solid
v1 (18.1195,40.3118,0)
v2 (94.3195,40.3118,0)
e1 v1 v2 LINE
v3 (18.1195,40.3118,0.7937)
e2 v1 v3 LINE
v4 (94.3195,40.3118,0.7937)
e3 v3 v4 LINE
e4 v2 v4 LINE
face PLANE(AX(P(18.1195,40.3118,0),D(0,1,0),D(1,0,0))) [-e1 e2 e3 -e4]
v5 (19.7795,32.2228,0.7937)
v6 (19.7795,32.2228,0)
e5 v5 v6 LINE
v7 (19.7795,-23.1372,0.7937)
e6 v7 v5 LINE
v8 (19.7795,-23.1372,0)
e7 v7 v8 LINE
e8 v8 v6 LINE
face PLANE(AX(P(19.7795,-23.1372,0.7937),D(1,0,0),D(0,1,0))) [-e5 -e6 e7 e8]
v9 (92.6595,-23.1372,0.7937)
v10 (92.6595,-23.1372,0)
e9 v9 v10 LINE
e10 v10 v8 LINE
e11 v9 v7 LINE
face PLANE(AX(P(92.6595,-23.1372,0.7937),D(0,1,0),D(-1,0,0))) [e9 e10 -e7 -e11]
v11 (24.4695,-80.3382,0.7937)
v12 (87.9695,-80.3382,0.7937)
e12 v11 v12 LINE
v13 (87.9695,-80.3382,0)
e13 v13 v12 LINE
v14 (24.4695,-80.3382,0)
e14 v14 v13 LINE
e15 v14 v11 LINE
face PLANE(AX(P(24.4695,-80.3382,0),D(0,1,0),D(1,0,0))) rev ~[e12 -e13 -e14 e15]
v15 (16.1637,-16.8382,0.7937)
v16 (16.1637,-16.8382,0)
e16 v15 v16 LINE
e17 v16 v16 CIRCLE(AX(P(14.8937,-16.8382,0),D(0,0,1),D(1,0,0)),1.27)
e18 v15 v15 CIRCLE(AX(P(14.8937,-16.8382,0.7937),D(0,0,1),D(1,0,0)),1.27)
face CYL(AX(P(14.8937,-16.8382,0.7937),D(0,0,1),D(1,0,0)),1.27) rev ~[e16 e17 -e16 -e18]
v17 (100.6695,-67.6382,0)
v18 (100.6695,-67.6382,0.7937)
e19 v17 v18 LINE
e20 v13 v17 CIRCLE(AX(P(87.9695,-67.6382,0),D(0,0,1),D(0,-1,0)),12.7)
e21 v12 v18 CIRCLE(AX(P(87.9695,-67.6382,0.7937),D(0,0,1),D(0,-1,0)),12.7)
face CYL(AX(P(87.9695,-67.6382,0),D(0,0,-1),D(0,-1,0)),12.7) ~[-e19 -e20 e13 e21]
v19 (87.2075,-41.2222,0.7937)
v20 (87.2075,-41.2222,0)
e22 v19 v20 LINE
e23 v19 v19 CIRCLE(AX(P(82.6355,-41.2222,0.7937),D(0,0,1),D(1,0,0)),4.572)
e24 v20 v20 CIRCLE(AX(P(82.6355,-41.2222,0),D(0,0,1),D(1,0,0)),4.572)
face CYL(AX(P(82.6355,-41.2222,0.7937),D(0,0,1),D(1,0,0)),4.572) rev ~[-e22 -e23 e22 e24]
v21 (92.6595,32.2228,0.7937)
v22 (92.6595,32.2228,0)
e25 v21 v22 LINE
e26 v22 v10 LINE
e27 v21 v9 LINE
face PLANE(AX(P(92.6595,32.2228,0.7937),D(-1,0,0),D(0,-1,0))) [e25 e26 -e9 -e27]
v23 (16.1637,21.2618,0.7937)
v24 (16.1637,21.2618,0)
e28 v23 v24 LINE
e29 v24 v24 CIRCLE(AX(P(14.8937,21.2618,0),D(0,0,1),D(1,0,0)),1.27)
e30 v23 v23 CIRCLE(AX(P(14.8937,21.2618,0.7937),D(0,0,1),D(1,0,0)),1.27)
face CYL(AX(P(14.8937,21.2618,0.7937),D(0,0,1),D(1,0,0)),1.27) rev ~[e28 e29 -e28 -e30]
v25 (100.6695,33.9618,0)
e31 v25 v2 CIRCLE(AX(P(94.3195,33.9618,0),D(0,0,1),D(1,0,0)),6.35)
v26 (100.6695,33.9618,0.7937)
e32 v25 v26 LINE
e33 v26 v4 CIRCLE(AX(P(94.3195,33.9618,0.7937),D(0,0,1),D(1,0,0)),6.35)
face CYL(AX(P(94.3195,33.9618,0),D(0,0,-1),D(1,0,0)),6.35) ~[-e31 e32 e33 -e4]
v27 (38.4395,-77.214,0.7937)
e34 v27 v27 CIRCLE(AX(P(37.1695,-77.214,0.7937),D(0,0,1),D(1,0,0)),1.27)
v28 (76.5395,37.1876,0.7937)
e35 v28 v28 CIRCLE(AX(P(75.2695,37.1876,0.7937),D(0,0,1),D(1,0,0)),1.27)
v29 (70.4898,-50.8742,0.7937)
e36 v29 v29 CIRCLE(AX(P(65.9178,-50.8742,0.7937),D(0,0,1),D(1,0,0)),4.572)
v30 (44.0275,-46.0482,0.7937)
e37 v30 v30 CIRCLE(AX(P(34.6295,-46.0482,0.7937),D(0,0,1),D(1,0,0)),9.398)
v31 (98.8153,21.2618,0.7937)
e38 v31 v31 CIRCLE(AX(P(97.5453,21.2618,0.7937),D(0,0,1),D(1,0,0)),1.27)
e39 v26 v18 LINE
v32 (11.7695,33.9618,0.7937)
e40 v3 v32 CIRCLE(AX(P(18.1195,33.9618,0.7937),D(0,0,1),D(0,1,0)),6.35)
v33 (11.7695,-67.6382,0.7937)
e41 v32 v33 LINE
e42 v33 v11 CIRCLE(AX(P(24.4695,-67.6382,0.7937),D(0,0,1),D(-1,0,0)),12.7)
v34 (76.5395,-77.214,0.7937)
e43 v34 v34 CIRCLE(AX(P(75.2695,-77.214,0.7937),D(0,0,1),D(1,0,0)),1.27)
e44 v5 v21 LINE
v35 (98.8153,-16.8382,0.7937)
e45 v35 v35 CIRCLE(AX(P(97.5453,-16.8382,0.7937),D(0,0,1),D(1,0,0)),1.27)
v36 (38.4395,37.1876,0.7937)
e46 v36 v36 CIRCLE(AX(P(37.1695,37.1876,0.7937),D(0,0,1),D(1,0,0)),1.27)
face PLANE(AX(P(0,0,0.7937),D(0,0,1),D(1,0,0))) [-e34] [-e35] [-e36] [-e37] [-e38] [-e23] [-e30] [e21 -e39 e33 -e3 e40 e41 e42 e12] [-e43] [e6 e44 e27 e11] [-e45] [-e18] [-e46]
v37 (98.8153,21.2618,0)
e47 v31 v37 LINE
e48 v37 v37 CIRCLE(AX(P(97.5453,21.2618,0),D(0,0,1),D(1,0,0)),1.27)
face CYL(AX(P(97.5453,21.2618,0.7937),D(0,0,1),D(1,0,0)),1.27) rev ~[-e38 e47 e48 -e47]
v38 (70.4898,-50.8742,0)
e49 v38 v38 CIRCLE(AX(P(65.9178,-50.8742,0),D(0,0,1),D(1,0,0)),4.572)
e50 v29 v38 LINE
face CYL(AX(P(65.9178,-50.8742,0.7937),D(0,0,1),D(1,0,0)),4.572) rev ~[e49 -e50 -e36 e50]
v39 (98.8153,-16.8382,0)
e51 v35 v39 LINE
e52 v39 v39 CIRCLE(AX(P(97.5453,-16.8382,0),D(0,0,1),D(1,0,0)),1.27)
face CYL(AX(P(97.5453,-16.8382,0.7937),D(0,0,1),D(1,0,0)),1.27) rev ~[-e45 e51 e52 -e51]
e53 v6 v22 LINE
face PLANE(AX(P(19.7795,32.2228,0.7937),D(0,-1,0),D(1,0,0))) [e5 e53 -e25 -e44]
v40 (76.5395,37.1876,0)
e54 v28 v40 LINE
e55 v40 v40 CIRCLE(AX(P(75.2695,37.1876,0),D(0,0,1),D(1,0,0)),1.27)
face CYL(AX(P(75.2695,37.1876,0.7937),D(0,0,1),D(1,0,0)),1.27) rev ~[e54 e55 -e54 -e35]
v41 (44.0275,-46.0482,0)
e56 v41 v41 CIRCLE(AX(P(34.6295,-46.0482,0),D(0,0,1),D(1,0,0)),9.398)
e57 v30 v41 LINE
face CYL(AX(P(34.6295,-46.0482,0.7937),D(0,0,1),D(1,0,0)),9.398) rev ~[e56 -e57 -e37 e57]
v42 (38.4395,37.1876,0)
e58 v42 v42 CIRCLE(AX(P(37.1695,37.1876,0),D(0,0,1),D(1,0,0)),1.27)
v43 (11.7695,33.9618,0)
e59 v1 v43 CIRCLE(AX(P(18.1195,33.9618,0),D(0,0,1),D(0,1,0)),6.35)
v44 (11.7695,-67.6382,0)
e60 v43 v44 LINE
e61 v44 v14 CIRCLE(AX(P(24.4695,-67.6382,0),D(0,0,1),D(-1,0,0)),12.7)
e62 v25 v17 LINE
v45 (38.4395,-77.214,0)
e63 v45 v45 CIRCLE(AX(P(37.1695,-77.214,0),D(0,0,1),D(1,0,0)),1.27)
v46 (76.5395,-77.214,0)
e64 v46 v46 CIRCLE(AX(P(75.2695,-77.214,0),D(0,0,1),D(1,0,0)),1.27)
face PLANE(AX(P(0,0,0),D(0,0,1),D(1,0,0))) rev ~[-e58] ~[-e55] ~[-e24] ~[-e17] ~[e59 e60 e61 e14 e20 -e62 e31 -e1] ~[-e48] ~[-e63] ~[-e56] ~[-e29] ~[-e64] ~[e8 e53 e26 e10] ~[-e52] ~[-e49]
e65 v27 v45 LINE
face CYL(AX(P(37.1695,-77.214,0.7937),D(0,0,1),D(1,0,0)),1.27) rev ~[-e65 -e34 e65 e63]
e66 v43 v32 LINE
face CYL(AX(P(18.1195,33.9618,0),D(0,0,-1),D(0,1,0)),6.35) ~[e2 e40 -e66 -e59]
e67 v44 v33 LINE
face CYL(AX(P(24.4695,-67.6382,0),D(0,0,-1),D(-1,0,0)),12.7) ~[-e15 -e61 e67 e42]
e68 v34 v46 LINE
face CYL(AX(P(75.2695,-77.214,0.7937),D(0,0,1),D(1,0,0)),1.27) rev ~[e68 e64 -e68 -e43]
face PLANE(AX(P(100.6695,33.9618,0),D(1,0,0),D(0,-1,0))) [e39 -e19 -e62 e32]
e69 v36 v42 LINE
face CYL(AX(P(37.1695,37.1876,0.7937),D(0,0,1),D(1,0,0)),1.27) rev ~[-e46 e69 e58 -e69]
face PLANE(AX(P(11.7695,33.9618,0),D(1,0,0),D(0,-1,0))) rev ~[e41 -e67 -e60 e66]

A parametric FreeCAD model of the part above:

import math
import FreeCAD as App
import Part
import Sketcher
from FreeCAD import Vector
Q = App.Units.Quantity

doc = App.newDocument("Part")
body = doc.addObject("PartDesign::Body", "Body")

sketch1 = body.newObject("Sketcher::SketchObject", "Sketch")
sketch1.AttachmentSupport = (doc.getObject("XY_Plane"), [""])
sketch1.MapMode = "FlatFace"
sketch1.addGeometry(Part.ArcOfCircle(Part.Circle(Vector(18, 34, 0), Vector(0, 0, 1), 6), math.radians(90), math.radians(180)), False)
sketch1.addGeometry(Part.LineSegment(Vector(12, 34, 0), Vector(12, -68, 0)), False)
sketch1.addGeometry(Part.ArcOfCircle(Part.Circle(Vector(24, -68, 0), Vector(0, 0, 1), 13), math.radians(180), math.radians(270)), False)
sketch1.addGeometry(Part.LineSegment(Vector(24, -80, 0), Vector(88, -80, 0)), False)
sketch1.addGeometry(Part.ArcOfCircle(Part.Circle(Vector(88, -68, 0), Vector(0, 0, 1), 13), math.radians(-90), math.radians(0)), False)
sketch1.addGeometry(Part.LineSegment(Vector(101, -68, 0), Vector(101, 34, 0)), False)
sketch1.addGeometry(Part.ArcOfCircle(Part.Circle(Vector(94, 34, 0), Vector(0, 0, 1), 6), math.radians(0), math.radians(90)), False)
sketch1.addGeometry(Part.LineSegment(Vector(94, 40, 0), Vector(18, 40, 0)), False)
sketch1.addConstraint(Sketcher.Constraint("Tangent", 0, 2, 1, 1))
sketch1.addConstraint(Sketcher.Constraint("Tangent", 1, 2, 2, 1))
sketch1.addConstraint(Sketcher.Constraint("Tangent", 2, 2, 3, 1))
sketch1.addConstraint(Sketcher.Constraint("Tangent", 3, 2, 4, 1))
sketch1.addConstraint(Sketcher.Constraint("Tangent", 4, 2, 5, 1))
sketch1.addConstraint(Sketcher.Constraint("Tangent", 5, 2, 6, 1))
sketch1.addConstraint(Sketcher.Constraint("Tangent", 6, 2, 7, 1))
sketch1.addConstraint(Sketcher.Constraint("Tangent", 7, 2, 0, 1))
sketch1.addConstraint(Sketcher.Constraint("Vertical", 1))
sketch1.addConstraint(Sketcher.Constraint("Horizontal", 3))
sketch1.addConstraint(Sketcher.Constraint("Vertical", 5))
sketch1.addConstraint(Sketcher.Constraint("Horizontal", 7))
sketch1.addConstraint(Sketcher.Constraint("Equal", 2, 4))
sketch1.addConstraint(Sketcher.Constraint("Equal", 0, 6))
sketch1.addConstraint(Sketcher.Constraint("Radius", 2, Q("0.5 in")))
sketch1.addConstraint(Sketcher.Constraint("Radius", 0, Q("0.25 in")))
sketch1.addConstraint(Sketcher.Constraint("DistanceX", 1, 2, 4, 2, Q("3.5 in")))
sketch1.addConstraint(Sketcher.Constraint("DistanceY", 1, 2, 1, 1, Q("4 in")))
sketch1.addConstraint(Sketcher.Constraint("DistanceX", -1, 1, 0, 3, Q("18.1195 mm")))
sketch1.addConstraint(Sketcher.Constraint("DistanceY", -1, 1, 0, 3, Q("33.9618 mm")))
pad1 = body.newObject("PartDesign::Pad", "Pad")
pad1.Profile = sketch1
pad1.Length = Q("0.031248 in")

sketch2 = body.newObject("Sketcher::SketchObject", "Sketch001")
sketch2.AttachmentSupport = (doc.getObject("XY_Plane"), [""])
sketch2.MapMode = "FlatFace"
sketch2.AttachmentOffset = App.Placement(Vector(0, 0, 0.031248 * 25.4), App.Rotation())
sketch2.addGeometry(Part.LineSegment(Vector(93, 32, 0), Vector(20, 32, 0)), False)
sketch2.addGeometry(Part.LineSegment(Vector(20, 32, 0), Vector(20, -23, 0)), False)
sketch2.addGeometry(Part.LineSegment(Vector(20, -23, 0), Vector(93, -23, 0)), False)
sketch2.addGeometry(Part.LineSegment(Vector(93, -23, 0), Vector(93, 32, 0)), False)
sketch2.addConstraint(Sketcher.Constraint("Coincident", 0, 2, 1, 1))
sketch2.addConstraint(Sketcher.Constraint("Coincident", 1, 2, 2, 1))
sketch2.addConstraint(Sketcher.Constraint("Coincident", 2, 2, 3, 1))
sketch2.addConstraint(Sketcher.Constraint("Coincident", 3, 2, 0, 1))
sketch2.addConstraint(Sketcher.Constraint("Horizontal", 0))
sketch2.addConstraint(Sketcher.Constraint("Vertical", 1))
sketch2.addConstraint(Sketcher.Constraint("Horizontal", 2))
sketch2.addConstraint(Sketcher.Constraint("Vertical", 3))
sketch2.addConstraint(Sketcher.Constraint("DistanceX", 0, 2, 0, 1, Q("2.8693 in")))
sketch2.addConstraint(Sketcher.Constraint("DistanceY", 1, 2, 1, 1, Q("55.36 mm")))
sketch2.addConstraint(Sketcher.Constraint("DistanceX", -1, 1, 2, 2, Q("3.648 in")))
sketch2.addConstraint(Sketcher.Constraint("DistanceY", -1, 1, 0, 2, Q("32.2228 mm")))
pocket1 = body.newObject("PartDesign::Pocket", "Pocket")
pocket1.Profile = sketch2
pocket1.Type = "ThroughAll"

sketch3 = body.newObject("Sketcher::SketchObject", "Sketch002")
sketch3.AttachmentSupport = (doc.getObject("XY_Plane"), [""])
sketch3.MapMode = "FlatFace"
sketch3.AttachmentOffset = App.Placement(Vector(0, 0, 0.031248 * 25.4), App.Rotation())
sketch3.addGeometry(Part.Circle(Vector(34.6, -46, 0), Vector(0, 0, 1), 9.4), False)
sketch3.addGeometry(Part.Circle(Vector(82.6, -41.2, 0), Vector(0, 0, 1), 4.6), False)
sketch3.addGeometry(Part.Circle(Vector(65.9, -50.9, 0), Vector(0, 0, 1), 4.6), False)
sketch3.addConstraint(Sketcher.Constraint("Equal", 1, 2))
sketch3.addConstraint(Sketcher.Constraint("Diameter", 0, Q("0.74 in")))
sketch3.addConstraint(Sketcher.Constraint("Diameter", 1, Q("0.36 in")))
sketch3.addConstraint(Sketcher.Constraint("DistanceX", 0, 3, 1, 3, Q("1.89 in")))
sketch3.addConstraint(Sketcher.Constraint("DistanceY", 0, 3, 1, 3, Q("0.19 in")))
sketch3.addConstraint(Sketcher.Constraint("DistanceY", 2, 3, 1, 3, Q("0.38 in")))
sketch3.addConstraint(Sketcher.Constraint("DistanceX", -1, 1, 2, 3, Q("2.5952 in")))
sketch3.addConstraint(Sketcher.Constraint("DistanceX", -1, 1, 0, 3, Q("34.6295 mm")))
sketch3.addConstraint(Sketcher.Constraint("DistanceY", 0, 3, -1, 1, Q("46.0482 mm")))
pocket2 = body.newObject("PartDesign::Pocket", "Pocket001")
pocket2.Profile = sketch3
pocket2.Type = "ThroughAll"

sketch4 = body.newObject("Sketcher::SketchObject", "Sketch003")
sketch4.AttachmentSupport = (doc.getObject("XY_Plane"), [""])
sketch4.MapMode = "FlatFace"
sketch4.AttachmentOffset = App.Placement(Vector(0, 0, 0.031248 * 25.4), App.Rotation())
sketch4.addGeometry(Part.Circle(Vector(37.2, 37.2, 0), Vector(0, 0, 1), 1.3), False)
sketch4.addGeometry(Part.Circle(Vector(75.3, 37.2, 0), Vector(0, 0, 1), 1.3), False)
sketch4.addGeometry(Part.Circle(Vector(97.5, 21.3, 0), Vector(0, 0, 1), 1.3), False)
sketch4.addGeometry(Part.Circle(Vector(97.5, -16.8, 0), Vector(0, 0, 1), 1.3), False)
sketch4.addGeometry(Part.Circle(Vector(75.3, -77.2, 0), Vector(0, 0, 1), 1.3), False)
sketch4.addGeometry(Part.Circle(Vector(37.2, -77.2, 0), Vector(0, 0, 1), 1.3), False)
sketch4.addGeometry(Part.Circle(Vector(14.9, 21.3, 0), Vector(0, 0, 1), 1.3), False)
sketch4.addGeometry(Part.Circle(Vector(14.9, -16.8, 0), Vector(0, 0, 1), 1.3), False)
sketch4.addConstraint(Sketcher.Constraint("Equal", 0, 1))
sketch4.addConstraint(Sketcher.Constraint("Equal", 1, 2))
sketch4.addConstraint(Sketcher.Constraint("Equal", 2, 3))
sketch4.addConstraint(Sketcher.Constraint("Equal", 3, 4))
sketch4.addConstraint(Sketcher.Constraint("Equal", 4, 5))
sketch4.addConstraint(Sketcher.Constraint("Equal", 5, 6))
sketch4.addConstraint(Sketcher.Constraint("Equal", 6, 7))
sketch4.addConstraint(Sketcher.Constraint("Horizontal", 0, 3, 1, 3))
sketch4.addConstraint(Sketcher.Constraint("Horizontal", 4, 3, 5, 3))
sketch4.addConstraint(Sketcher.Constraint("Horizontal", 2, 3, 6, 3))
sketch4.addConstraint(Sketcher.Constraint("Horizontal", 3, 3, 7, 3))
sketch4.addConstraint(Sketcher.Constraint("Vertical", 2, 3, 3, 3))
sketch4.addConstraint(Sketcher.Constraint("Vertical", 1, 3, 4, 3))
sketch4.addConstraint(Sketcher.Constraint("Vertical", 0, 3, 5, 3))
sketch4.addConstraint(Sketcher.Constraint("Vertical", 6, 3, 7, 3))
sketch4.addConstraint(Sketcher.Constraint("Diameter", 0, Q("0.1 in")))
sketch4.addConstraint(Sketcher.Constraint("DistanceX", 0, 3, 1, 3, Q("1.5 in")))
sketch4.addConstraint(Sketcher.Constraint("DistanceY", 3, 3, 2, 3, Q("1.5 in")))
sketch4.addConstraint(Sketcher.Constraint("DistanceX", 1, 3, 2, 3, Q("0.877 in")))
sketch4.addConstraint(Sketcher.Constraint("DistanceY", 2, 3, 1, 3, Q("0.627 in")))
sketch4.addConstraint(Sketcher.Constraint("DistanceY", 4, 3, 3, 3, Q("2.377 in")))
sketch4.addConstraint(Sketcher.Constraint("DistanceX", 6, 3, 0, 3, Q("0.877 in")))
sketch4.addConstraint(Sketcher.Constraint("DistanceX", -1, 1, 0, 3, Q("37.1695 mm")))
sketch4.addConstraint(Sketcher.Constraint("DistanceY", -1, 1, 0, 3, Q("37.1876 mm")))
pocket3 = body.newObject("PartDesign::Pocket", "Pocket002")
pocket3.Profile = sketch4
pocket3.Type = "ThroughAll"

doc.recompute()
